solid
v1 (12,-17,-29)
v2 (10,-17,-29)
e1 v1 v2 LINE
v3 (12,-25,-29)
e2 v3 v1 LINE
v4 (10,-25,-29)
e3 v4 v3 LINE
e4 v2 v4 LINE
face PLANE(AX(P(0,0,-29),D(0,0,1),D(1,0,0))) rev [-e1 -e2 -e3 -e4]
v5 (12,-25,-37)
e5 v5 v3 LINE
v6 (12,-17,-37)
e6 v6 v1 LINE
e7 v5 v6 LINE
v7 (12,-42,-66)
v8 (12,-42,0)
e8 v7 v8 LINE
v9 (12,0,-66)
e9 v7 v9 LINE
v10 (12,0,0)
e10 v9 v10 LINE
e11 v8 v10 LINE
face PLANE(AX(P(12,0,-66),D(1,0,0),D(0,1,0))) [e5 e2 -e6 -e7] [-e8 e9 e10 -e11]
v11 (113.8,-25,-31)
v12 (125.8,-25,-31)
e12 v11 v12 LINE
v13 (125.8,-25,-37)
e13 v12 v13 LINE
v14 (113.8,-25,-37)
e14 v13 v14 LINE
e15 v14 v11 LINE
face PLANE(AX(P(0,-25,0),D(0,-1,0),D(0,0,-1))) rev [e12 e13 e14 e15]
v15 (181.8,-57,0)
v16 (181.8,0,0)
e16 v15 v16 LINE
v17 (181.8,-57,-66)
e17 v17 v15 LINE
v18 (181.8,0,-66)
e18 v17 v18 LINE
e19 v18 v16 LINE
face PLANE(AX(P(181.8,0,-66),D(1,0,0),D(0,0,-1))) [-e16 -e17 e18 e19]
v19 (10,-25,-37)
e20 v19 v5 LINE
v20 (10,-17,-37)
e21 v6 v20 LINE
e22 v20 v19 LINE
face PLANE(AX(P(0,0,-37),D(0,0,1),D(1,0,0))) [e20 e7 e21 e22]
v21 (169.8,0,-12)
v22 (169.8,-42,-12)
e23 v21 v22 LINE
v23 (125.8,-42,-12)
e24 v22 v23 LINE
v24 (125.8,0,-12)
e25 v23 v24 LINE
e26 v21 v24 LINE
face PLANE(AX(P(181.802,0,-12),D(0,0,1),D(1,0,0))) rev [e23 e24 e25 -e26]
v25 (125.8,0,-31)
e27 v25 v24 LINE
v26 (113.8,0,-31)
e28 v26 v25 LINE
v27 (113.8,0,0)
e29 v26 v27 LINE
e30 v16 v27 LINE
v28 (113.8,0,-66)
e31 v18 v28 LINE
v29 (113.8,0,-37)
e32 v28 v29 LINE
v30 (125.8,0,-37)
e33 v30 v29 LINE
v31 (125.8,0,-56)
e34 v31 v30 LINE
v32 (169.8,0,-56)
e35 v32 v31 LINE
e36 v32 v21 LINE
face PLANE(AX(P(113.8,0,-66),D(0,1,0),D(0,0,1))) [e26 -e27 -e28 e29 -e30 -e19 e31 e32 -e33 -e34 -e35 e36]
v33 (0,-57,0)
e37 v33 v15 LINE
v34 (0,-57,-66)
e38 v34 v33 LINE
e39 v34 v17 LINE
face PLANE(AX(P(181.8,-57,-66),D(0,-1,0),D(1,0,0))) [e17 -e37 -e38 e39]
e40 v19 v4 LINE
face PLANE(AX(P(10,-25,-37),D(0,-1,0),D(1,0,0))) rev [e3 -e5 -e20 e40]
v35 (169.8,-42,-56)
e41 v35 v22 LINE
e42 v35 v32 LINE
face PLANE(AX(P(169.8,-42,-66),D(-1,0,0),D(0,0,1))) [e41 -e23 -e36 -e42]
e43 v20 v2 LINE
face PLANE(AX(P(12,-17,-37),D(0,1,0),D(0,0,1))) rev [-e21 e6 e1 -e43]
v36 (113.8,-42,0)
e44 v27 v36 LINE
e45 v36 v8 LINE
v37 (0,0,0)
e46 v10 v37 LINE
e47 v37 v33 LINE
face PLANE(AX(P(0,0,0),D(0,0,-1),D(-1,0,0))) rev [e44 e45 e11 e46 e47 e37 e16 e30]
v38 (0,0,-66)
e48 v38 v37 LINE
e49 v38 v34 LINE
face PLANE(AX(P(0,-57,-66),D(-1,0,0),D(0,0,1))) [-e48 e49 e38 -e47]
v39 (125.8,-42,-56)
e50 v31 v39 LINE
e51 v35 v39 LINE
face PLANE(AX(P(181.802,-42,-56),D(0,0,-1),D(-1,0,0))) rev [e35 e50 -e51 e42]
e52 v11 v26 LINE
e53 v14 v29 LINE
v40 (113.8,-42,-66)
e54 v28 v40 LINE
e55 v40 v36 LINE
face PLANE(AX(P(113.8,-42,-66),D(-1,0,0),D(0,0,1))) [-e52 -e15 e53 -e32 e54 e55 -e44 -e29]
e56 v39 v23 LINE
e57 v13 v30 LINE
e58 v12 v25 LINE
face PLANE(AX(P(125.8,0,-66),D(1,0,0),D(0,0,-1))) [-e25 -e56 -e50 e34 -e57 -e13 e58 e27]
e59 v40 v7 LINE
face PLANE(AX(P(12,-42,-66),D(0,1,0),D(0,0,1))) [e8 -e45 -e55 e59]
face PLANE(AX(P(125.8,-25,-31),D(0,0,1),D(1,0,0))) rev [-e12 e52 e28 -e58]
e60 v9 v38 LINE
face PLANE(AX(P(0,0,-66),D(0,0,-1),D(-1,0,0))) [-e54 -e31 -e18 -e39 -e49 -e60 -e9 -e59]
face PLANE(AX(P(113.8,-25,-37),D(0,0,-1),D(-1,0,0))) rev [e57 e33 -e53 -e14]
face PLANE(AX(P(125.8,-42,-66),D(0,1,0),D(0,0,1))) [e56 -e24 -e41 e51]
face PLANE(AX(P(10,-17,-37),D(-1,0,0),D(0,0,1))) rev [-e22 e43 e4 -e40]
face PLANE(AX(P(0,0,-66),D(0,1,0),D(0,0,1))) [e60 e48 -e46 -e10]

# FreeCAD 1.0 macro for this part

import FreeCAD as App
import Part
import Sketcher
from FreeCAD import Vector

doc = App.newDocument("Part")
body = doc.addObject("PartDesign::Body", "Body")

# Sketch on XY plane
sketch1 = doc.addObject("Sketcher::SketchObject", "Sketch")
body.addObject(sketch1)
sketch1.AttachmentSupport = (doc.XY_Plane, [""])
sketch1.MapMode = "FlatFace"
sketch1.addGeometry(Part.LineSegment(Vector(12, 0, 0), Vector(0, 0, 0)), False)
sketch1.addGeometry(Part.LineSegment(Vector(0, 0, 0), Vector(0, -57, 0)), False)
sketch1.addGeometry(Part.LineSegment(Vector(0, -57, 0), Vector(182, -57, 0)), False)
sketch1.addGeometry(Part.LineSegment(Vector(182, -57, 0), Vector(182, 0, 0)), False)
sketch1.addGeometry(Part.LineSegment(Vector(182, 0, 0), Vector(170, 0, 0)), False)
sketch1.addGeometry(Part.LineSegment(Vector(170, 0, 0), Vector(170, -42, 0)), False)
sketch1.addGeometry(Part.LineSegment(Vector(170, -42, 0), Vector(126, -42, 0)), False)
sketch1.addGeometry(Part.LineSegment(Vector(126, -42, 0), Vector(126, 0, 0)), False)
sketch1.addGeometry(Part.LineSegment(Vector(126, 0, 0), Vector(114, 0, 0)), False)
sketch1.addGeometry(Part.LineSegment(Vector(114, 0, 0), Vector(114, -42, 0)), False)
sketch1.addGeometry(Part.LineSegment(Vector(114, -42, 0), Vector(12, -42, 0)), False)
sketch1.addGeometry(Part.LineSegment(Vector(12, -42, 0), Vector(12, 0, 0)), False)
sketch1.addConstraint(Sketcher.Constraint("Coincident", 0, 2, 1, 1))
sketch1.addConstraint(Sketcher.Constraint("Coincident", 1, 2, 2, 1))
sketch1.addConstraint(Sketcher.Constraint("Coincident", 2, 2, 3, 1))
sketch1.addConstraint(Sketcher.Constraint("Coincident", 3, 2, 4, 1))
sketch1.addConstraint(Sketcher.Constraint("Coincident", 4, 2, 5, 1))
sketch1.addConstraint(Sketcher.Constraint("Coincident", 5, 2, 6, 1))
sketch1.addConstraint(Sketcher.Constraint("Coincident", 6, 2, 7, 1))
sketch1.addConstraint(Sketcher.Constraint("Coincident", 7, 2, 8, 1))
sketch1.addConstraint(Sketcher.Constraint("Coincident", 8, 2, 9, 1))
sketch1.addConstraint(Sketcher.Constraint("Coincident", 9, 2, 10, 1))
sketch1.addConstraint(Sketcher.Constraint("Coincident", 10, 2, 11, 1))
sketch1.addConstraint(Sketcher.Constraint("Coincident", 11, 2, 0, 1))
sketch1.addConstraint(Sketcher.Constraint("Horizontal", 0))
sketch1.addConstraint(Sketcher.Constraint("Vertical", 1))
sketch1.addConstraint(Sketcher.Constraint("Horizontal", 2))
sketch1.addConstraint(Sketcher.Constraint("Vertical", 3))
sketch1.addConstraint(Sketcher.Constraint("Horizontal", 4))
sketch1.addConstraint(Sketcher.Constraint("Vertical", 5))
sketch1.addConstraint(Sketcher.Constraint("Horizontal", 6))
sketch1.addConstraint(Sketcher.Constraint("Vertical", 7))
sketch1.addConstraint(Sketcher.Constraint("Horizontal", 8))
sketch1.addConstraint(Sketcher.Constraint("Vertical", 9))
sketch1.addConstraint(Sketcher.Constraint("Horizontal", 10))
sketch1.addConstraint(Sketcher.Constraint("Vertical", 11))
sketch1.addConstraint(Sketcher.Constraint("Coincident", 0, 2, -1, 1))
sketch1.addConstraint(Sketcher.Constraint("PointOnObject", 3, 2, -1))
sketch1.addConstraint(Sketcher.Constraint("PointOnObject", 7, 2, -1))
sketch1.addConstraint(Sketcher.Constraint("Horizontal", 6, 2, 9, 2))
sketch1.addConstraint(Sketcher.Constraint("Equal", 0, 4))
sketch1.addConstraint(Sketcher.Constraint("Equal", 4, 8))
sketch1.addConstraint(Sketcher.Constraint("DistanceX", 0, 2, 0, 1, 12.0))
sketch1.addConstraint(Sketcher.Constraint("DistanceX", 6, 2, 6, 1, 44.0))
sketch1.addConstraint(Sketcher.Constraint("DistanceY", 1, 2, 1, 1, 57.0))
sketch1.addConstraint(Sketcher.Constraint("DistanceY", 5, 2, 5, 1, 42.0))
sketch1.addConstraint(Sketcher.Constraint("DistanceX", 2, 1, 2, 2, 181.8))
pad1 = doc.addObject("PartDesign::Pad", "Pad")
body.addObject(pad1)
pad1.Profile = sketch1
pad1.Length = 66
pad1.Reversed = True

# Sketch on XY plane
sketch2 = doc.addObject("Sketcher::SketchObject", "Sketch001")
body.addObject(sketch2)
sketch2.AttachmentSupport = (doc.XY_Plane, [""])
sketch2.MapMode = "FlatFace"
sketch2.addGeometry(Part.LineSegment(Vector(10, -17, 0), Vector(10, -25, 0)), False)
sketch2.addGeometry(Part.LineSegment(Vector(10, -25, 0), Vector(12, -25, 0)), False)
sketch2.addGeometry(Part.LineSegment(Vector(12, -25, 0), Vector(12, -17, 0)), False)
sketch2.addGeometry(Part.LineSegment(Vector(12, -17, 0), Vector(10, -17, 0)), False)
sketch2.addConstraint(Sketcher.Constraint("Coincident", 0, 2, 1, 1))
sketch2.addConstraint(Sketcher.Constraint("Coincident", 1, 2, 2, 1))
sketch2.addConstraint(Sketcher.Constraint("Coincident", 2, 2, 3, 1))
sketch2.addConstraint(Sketcher.Constraint("Coincident", 3, 2, 0, 1))
sketch2.addConstraint(Sketcher.Constraint("Vertical", 0))
sketch2.addConstraint(Sketcher.Constraint("Horizontal", 1))
sketch2.addConstraint(Sketcher.Constraint("Vertical", 2))
sketch2.addConstraint(Sketcher.Constraint("Horizontal", 3))
sketch2.addConstraint(Sketcher.Constraint("DistanceX", 1, 1, 1, 2, 2.0))
sketch2.addConstraint(Sketcher.Constraint("DistanceY", 0, 2, 0, 1, 8.0))
sketch2.addConstraint(Sketcher.Constraint("DistanceX", -1, 1, 0, 2, 10.0))
sketch2.addConstraint(Sketcher.Constraint("DistanceY", 0, 2, -1, 1, 25.0))
pocket1 = doc.addObject("PartDesign::Pocket", "Pocket")
body.addObject(pocket1)
pocket1.Profile = sketch2
pocket1.Length = 37

# Sketch on XY plane
sketch3 = doc.addObject("Sketcher::SketchObject", "Sketch002")
body.addObject(sketch3)
sketch3.AttachmentSupport = (doc.XY_Plane, [""])
sketch3.MapMode = "FlatFace"
sketch3.addGeometry(Part.LineSegment(Vector(10, -17, 0), Vector(10, -25, 0)), False)
sketch3.addGeometry(Part.LineSegment(Vector(10, -25, 0), Vector(12, -25, 0)), False)
sketch3.addGeometry(Part.LineSegment(Vector(12, -25, 0), Vector(12, -17, 0)), False)
sketch3.addGeometry(Part.LineSegment(Vector(12, -17, 0), Vector(10, -17, 0)), False)
sketch3.addConstraint(Sketcher.Constraint("Coincident", 0, 2, 1, 1))
sketch3.addConstraint(Sketcher.Constraint("Coincident", 1, 2, 2, 1))
sketch3.addConstraint(Sketcher.Constraint("Coincident", 2, 2, 3, 1))
sketch3.addConstraint(Sketcher.Constraint("Coincident", 3, 2, 0, 1))
sketch3.addConstraint(Sketcher.Constraint("Vertical", 0))
sketch3.addConstraint(Sketcher.Constraint("Horizontal", 1))
sketch3.addConstraint(Sketcher.Constraint("Vertical", 2))
sketch3.addConstraint(Sketcher.Constraint("Horizontal", 3))
sketch3.addConstraint(Sketcher.Constraint("DistanceX", 1, 1, 1, 2, 2.0))
sketch3.addConstraint(Sketcher.Constraint("DistanceY", 0, 2, 0, 1, 8.0))
sketch3.addConstraint(Sketcher.Constraint("DistanceX", -1, 1, 0, 2, 10.0))
sketch3.addConstraint(Sketcher.Constraint("DistanceY", 0, 2, -1, 1, 25.0))
pad2 = doc.addObject("PartDesign::Pad", "Pad001")
body.addObject(pad2)
pad2.Profile = sketch3
pad2.Length = 29
pad2.Reversed = True

# Sketch on YZ plane
sketch4 = doc.addObject("Sketcher::SketchObject", "Sketch003")
body.addObject(sketch4)
sketch4.AttachmentSupport = (doc.YZ_Plane, [""])
sketch4.MapMode = "FlatFace"
sketch4.AttachmentOffset = App.Placement(Vector(0, 0, 125.8), App.Rotation())
sketch4.addGeometry(Part.LineSegment(Vector(0, 0, 0), Vector(-42, 0, 0)), False)
sketch4.addGeometry(Part.LineSegment(Vector(-42, 0, 0), Vector(-42, -12, 0)), False)
sketch4.addGeometry(Part.LineSegment(Vector(-42, -12, 0), Vector(0, -12, 0)), False)
sketch4.addGeometry(Part.LineSegment(Vector(0, -12, 0), Vector(0, 0, 0)), False)
sketch4.addConstraint(Sketcher.Constraint("Coincident", 0, 2, 1, 1))
sketch4.addConstraint(Sketcher.Constraint("Coincident", 1, 2, 2, 1))
sketch4.addConstraint(Sketcher.Constraint("Coincident", 2, 2, 3, 1))
sketch4.addConstraint(Sketcher.Constraint("Coincident", 3, 2, 0, 1))
sketch4.addConstraint(Sketcher.Constraint("Horizontal", 0))
sketch4.addConstraint(Sketcher.Constraint("Vertical", 1))
sketch4.addConstraint(Sketcher.Constraint("Horizontal", 2))
sketch4.addConstraint(Sketcher.Constraint("Vertical", 3))
sketch4.addConstraint(Sketcher.Constraint("Coincident", 3, 2, -1, 1))
sketch4.addConstraint(Sketcher.Constraint("DistanceX", 0, 2, 0, 1, 42.0))
sketch4.addConstraint(Sketcher.Constraint("DistanceY", 1, 2, 1, 1, 12.0))
pad3 = doc.addObject("PartDesign::Pad", "Pad002")
body.addObject(pad3)
pad3.Profile = sketch4
pad3.Type = "UpToFirst"

# Sketch on YZ plane
sketch5 = doc.addObject("Sketcher::SketchObject", "Sketch004")
body.addObject(sketch5)
sketch5.AttachmentSupport = (doc.YZ_Plane, [""])
sketch5.MapMode = "FlatFace"
sketch5.AttachmentOffset = App.Placement(Vector(0, 0, 125.8), App.Rotation())
sketch5.addGeometry(Part.LineSegment(Vector(0, -56, 0), Vector(-42, -56, 0)), False)
sketch5.addGeometry(Part.LineSegment(Vector(-42, -56, 0), Vector(-42, -66, 0)), False)
sketch5.addGeometry(Part.LineSegment(Vector(-42, -66, 0), Vector(0, -66, 0)), False)
sketch5.addGeometry(Part.LineSegment(Vector(0, -66, 0), Vector(0, -56, 0)), False)
sketch5.addConstraint(Sketcher.Constraint("Coincident", 0, 2, 1, 1))
sketch5.addConstraint(Sketcher.Constraint("Coincident", 1, 2, 2, 1))
sketch5.addConstraint(Sketcher.Constraint("Coincident", 2, 2, 3, 1))
sketch5.addConstraint(Sketcher.Constraint("Coincident", 3, 2, 0, 1))
sketch5.addConstraint(Sketcher.Constraint("Horizontal", 0))
sketch5.addConstraint(Sketcher.Constraint("Vertical", 1))
sketch5.addConstraint(Sketcher.Constraint("Horizontal", 2))
sketch5.addConstraint(Sketcher.Constraint("Vertical", 3))
sketch5.addConstraint(Sketcher.Constraint("PointOnObject", 2, 2, -2))
sketch5.addConstraint(Sketcher.Constraint("DistanceX", 0, 2, 0, 1, 42.0))
sketch5.addConstraint(Sketcher.Constraint("DistanceY", 1, 2, 1, 1, 10.0))
sketch5.addConstraint(Sketcher.Constraint("DistanceY", 0, 2, -1, 1, 56.0))
pad4 = doc.addObject("PartDesign::Pad", "Pad003")
body.addObject(pad4)
pad4.Profile = sketch5
pad4.Type = "UpToFirst"

# Sketch on XZ plane
sketch6 = doc.addObject("Sketcher::SketchObject", "Sketch005")
body.addObject(sketch6)
sketch6.AttachmentSupport = (doc.XZ_Plane, [""])
sketch6.MapMode = "FlatFace"
sketch6.addGeometry(Part.LineSegment(Vector(114, -37, 0), Vector(114, -31, 0)), False)
sketch6.addGeometry(Part.LineSegment(Vector(114, -31, 0), Vector(126, -31, 0)), False)
sketch6.addGeometry(Part.LineSegment(Vector(126, -31, 0), Vector(126, -37, 0)), False)
sketch6.addGeometry(Part.LineSegment(Vector(126, -37, 0), Vector(114, -37, 0)), False)
sketch6.addConstraint(Sketcher.Constraint("Coincident", 0, 2, 1, 1))
sketch6.addConstraint(Sketcher.Constraint("Coincident", 1, 2, 2, 1))
sketch6.addConstraint(Sketcher.Constraint("Coincident", 2, 2, 3, 1))
sketch6.addConstraint(Sketcher.Constraint("Coincident", 3, 2, 0, 1))
sketch6.addConstraint(Sketcher.Constraint("Vertical", 0))
sketch6.addConstraint(Sketcher.Constraint("Horizontal", 1))
sketch6.addConstraint(Sketcher.Constraint("Vertical", 2))
sketch6.addConstraint(Sketcher.Constraint("Horizontal", 3))
sketch6.addConstraint(Sketcher.Constraint("DistanceX", 1, 1, 1, 2, 12.0))
sketch6.addConstraint(Sketcher.Constraint("DistanceY", 0, 1, 0, 2, 6.0))
sketch6.addConstraint(Sketcher.Constraint("DistanceY", 0, 2, -1, 1, 31.0))
sketch6.addConstraint(Sketcher.Constraint("DistanceX", -1, 1, 0, 2, 113.8))
pocket2 = doc.addObject("PartDesign::Pocket", "Pocket001")
body.addObject(pocket2)
pocket2.Profile = sketch6
pocket2.Length = 25
pocket2.Reversed = True

doc.recompute()
